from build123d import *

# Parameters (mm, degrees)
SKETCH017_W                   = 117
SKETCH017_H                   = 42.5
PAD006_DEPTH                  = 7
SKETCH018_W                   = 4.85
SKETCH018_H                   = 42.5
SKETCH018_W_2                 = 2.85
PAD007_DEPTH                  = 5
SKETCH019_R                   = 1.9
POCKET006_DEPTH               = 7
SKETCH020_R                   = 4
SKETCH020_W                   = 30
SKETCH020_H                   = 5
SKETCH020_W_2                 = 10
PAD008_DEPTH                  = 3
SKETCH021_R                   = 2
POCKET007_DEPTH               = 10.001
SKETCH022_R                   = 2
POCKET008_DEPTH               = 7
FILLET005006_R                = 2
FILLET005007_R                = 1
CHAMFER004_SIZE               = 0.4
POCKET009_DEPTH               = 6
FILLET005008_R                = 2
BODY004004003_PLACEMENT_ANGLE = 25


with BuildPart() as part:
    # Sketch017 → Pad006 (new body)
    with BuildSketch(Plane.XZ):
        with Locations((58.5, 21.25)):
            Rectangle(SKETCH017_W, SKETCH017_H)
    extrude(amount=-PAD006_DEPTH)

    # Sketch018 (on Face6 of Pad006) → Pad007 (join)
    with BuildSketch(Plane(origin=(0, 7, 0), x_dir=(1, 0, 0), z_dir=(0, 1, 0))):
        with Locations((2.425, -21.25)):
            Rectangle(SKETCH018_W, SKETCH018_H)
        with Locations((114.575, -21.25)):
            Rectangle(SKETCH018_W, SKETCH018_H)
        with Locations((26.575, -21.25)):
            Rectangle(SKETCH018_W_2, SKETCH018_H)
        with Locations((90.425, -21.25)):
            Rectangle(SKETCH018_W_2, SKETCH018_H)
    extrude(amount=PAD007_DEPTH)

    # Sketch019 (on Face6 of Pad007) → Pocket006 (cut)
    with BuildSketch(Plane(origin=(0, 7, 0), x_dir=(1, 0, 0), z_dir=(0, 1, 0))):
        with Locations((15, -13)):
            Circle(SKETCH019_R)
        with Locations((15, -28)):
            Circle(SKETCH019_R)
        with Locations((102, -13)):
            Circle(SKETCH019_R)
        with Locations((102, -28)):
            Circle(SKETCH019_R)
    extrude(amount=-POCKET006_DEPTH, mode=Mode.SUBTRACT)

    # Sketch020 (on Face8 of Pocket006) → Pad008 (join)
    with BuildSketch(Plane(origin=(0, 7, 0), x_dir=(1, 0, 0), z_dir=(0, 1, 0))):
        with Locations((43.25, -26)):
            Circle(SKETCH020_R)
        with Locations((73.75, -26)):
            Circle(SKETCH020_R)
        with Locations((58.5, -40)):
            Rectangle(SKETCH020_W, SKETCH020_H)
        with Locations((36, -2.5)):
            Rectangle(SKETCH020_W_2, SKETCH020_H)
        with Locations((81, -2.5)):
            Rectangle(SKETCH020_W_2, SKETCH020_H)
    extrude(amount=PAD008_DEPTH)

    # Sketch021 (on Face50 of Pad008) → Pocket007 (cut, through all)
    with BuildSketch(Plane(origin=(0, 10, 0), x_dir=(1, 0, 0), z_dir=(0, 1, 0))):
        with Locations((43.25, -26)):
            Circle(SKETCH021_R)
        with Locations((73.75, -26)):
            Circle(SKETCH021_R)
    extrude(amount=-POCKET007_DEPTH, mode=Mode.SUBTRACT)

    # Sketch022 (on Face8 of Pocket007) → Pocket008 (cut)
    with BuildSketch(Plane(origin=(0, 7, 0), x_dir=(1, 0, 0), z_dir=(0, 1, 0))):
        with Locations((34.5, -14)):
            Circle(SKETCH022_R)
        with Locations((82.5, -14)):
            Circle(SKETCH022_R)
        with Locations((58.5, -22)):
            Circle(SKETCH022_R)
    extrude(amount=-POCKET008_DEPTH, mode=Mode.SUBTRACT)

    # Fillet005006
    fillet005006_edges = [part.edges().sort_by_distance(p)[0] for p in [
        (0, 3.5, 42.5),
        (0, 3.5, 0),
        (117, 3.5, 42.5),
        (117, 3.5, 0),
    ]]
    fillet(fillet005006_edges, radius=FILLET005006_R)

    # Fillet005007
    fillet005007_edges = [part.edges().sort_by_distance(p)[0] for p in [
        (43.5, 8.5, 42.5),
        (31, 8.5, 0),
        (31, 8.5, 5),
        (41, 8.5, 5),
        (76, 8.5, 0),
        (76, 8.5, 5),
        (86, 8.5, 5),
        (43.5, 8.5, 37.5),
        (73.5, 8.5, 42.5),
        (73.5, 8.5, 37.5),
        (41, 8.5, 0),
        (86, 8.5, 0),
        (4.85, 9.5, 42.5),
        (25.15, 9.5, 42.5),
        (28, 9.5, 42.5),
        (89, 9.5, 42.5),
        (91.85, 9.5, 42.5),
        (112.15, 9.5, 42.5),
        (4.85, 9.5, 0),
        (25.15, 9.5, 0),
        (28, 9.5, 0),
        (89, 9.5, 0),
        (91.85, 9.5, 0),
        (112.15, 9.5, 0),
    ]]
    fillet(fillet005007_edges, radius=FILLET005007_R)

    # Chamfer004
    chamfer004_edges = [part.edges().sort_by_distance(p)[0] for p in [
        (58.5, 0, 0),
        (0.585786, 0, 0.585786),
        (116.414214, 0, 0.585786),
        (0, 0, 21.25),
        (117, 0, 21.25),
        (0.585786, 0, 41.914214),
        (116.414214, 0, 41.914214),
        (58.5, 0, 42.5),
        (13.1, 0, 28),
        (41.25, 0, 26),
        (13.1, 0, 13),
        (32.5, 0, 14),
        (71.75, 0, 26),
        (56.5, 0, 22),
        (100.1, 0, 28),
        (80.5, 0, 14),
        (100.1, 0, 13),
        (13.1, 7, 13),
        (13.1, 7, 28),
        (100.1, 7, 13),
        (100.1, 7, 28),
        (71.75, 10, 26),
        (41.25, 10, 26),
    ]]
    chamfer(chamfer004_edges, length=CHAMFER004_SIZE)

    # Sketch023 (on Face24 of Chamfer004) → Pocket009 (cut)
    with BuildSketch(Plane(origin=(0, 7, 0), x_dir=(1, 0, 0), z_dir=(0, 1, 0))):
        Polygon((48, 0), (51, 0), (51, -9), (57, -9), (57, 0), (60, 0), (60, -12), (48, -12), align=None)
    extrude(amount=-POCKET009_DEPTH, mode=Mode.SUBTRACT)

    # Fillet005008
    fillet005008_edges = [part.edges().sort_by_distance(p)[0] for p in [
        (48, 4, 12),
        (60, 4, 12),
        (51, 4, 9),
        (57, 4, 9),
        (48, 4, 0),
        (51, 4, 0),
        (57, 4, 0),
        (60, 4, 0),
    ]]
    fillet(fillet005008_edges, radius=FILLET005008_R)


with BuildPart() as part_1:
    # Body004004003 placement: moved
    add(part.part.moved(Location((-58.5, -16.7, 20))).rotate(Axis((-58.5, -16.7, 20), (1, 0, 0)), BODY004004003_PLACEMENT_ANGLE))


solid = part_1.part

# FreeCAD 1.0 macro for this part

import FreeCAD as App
import Part
import Sketcher
from FreeCAD import Vector
Q = App.Units.Quantity


def edges_at(feature, points):
    """Names of the edges that pass closest to the given points."""
    edges = feature.Shape.Edges
    near = lambda p: min(range(len(edges)), key=lambda i: edges[i].distToShape(Part.Vertex(*p))[0])
    return sorted({f"Edge{near(p) + 1}" for p in points})

doc = App.newDocument("Part")
body = doc.addObject("PartDesign::Body", "Body")

# Sketch on XZ plane
sketch1 = doc.addObject("Sketcher::SketchObject", "Sketch")
body.addObject(sketch1)
sketch1.AttachmentSupport = (doc.XZ_Plane, [""])
sketch1.MapMode = "FlatFace"
sketch1.addGeometry([
    Part.LineSegment(Vector(0, 42, 0), Vector(0, 0, 0)),
    Part.LineSegment(Vector(0, 0, 0), Vector(117, 0, 0)),
    Part.LineSegment(Vector(117, 0, 0), Vector(117, 42, 0)),
    Part.LineSegment(Vector(117, 42, 0), Vector(0, 42, 0)),
], False)
sketch1.addConstraint([
    Sketcher.Constraint("Coincident", 0, 2, 1, 1),
    Sketcher.Constraint("Coincident", 1, 2, 2, 1),
    Sketcher.Constraint("Coincident", 2, 2, 3, 1),
    Sketcher.Constraint("Coincident", 3, 2, 0, 1),
    Sketcher.Constraint("Vertical", 0),
    Sketcher.Constraint("Horizontal", 1),
    Sketcher.Constraint("Vertical", 2),
    Sketcher.Constraint("Horizontal", 3),
    Sketcher.Constraint("Coincident", 0, 2, -1, 1),
    Sketcher.Constraint("DistanceX", 1, 1, 1, 2, Q("117 mm")),
    Sketcher.Constraint("DistanceY", 0, 2, 0, 1, Q("42.5 mm")),
])
pad1 = doc.addObject("PartDesign::Pad", "Pad")
body.addObject(pad1)
pad1.Profile = sketch1
pad1.Length = 7
pad1.Reversed = True

# Sketch on XZ plane
sketch2 = doc.addObject("Sketcher::SketchObject", "Sketch001")
body.addObject(sketch2)
sketch2.AttachmentSupport = (doc.XZ_Plane, [""])
sketch2.MapMode = "FlatFace"
sketch2.AttachmentOffset = App.Placement(Vector(0, 0, -7), App.Rotation())
sketch2.addGeometry([
    Part.LineSegment(Vector(0, 0, 0), Vector(0, 42.5, 0)),  # 0
    Part.LineSegment(Vector(0, 42.5, 0), Vector(4.8, 42.5, 0)),  # 1
    Part.LineSegment(Vector(4.8, 42.5, 0), Vector(4.8, 0, 0)),  # 2
    Part.LineSegment(Vector(4.8, 0, 0), Vector(0, 0, 0)),  # 3
    Part.LineSegment(Vector(112.2, 0, 0), Vector(112.2, 42.5, 0)),  # 4
    Part.LineSegment(Vector(112.2, 42.5, 0), Vector(117, 42.5, 0)),  # 5
    Part.LineSegment(Vector(117, 42.5, 0), Vector(117, 0, 0)),  # 6
    Part.LineSegment(Vector(117, 0, 0), Vector(112.2, 0, 0)),  # 7
    Part.LineSegment(Vector(25.1, 0, 0), Vector(25.1, 42.5, 0)),  # 8
    Part.LineSegment(Vector(25.1, 42.5, 0), Vector(28, 42.5, 0)),  # 9
    Part.LineSegment(Vector(28, 42.5, 0), Vector(28, 0, 0)),  # 10
    Part.LineSegment(Vector(28, 0, 0), Vector(25.1, 0, 0)),  # 11
    Part.LineSegment(Vector(89, 0, 0), Vector(89, 42.5, 0)),  # 12
    Part.LineSegment(Vector(89, 42.5, 0), Vector(91.8, 42.5, 0)),  # 13
    Part.LineSegment(Vector(91.8, 42.5, 0), Vector(91.8, 0, 0)),  # 14
    Part.LineSegment(Vector(91.8, 0, 0), Vector(89, 0, 0)),  # 15
], False)
sketch2.addConstraint([
    Sketcher.Constraint("Coincident", 0, 2, 1, 1),
    Sketcher.Constraint("Coincident", 1, 2, 2, 1),
    Sketcher.Constraint("Coincident", 2, 2, 3, 1),
    Sketcher.Constraint("Coincident", 3, 2, 0, 1),
    Sketcher.Constraint("Coincident", 4, 2, 5, 1),
    Sketcher.Constraint("Coincident", 5, 2, 6, 1),
    Sketcher.Constraint("Coincident", 6, 2, 7, 1),
    Sketcher.Constraint("Coincident", 7, 2, 4, 1),
    Sketcher.Constraint("Coincident", 8, 2, 9, 1),
    Sketcher.Constraint("Coincident", 9, 2, 10, 1),
    Sketcher.Constraint("Coincident", 10, 2, 11, 1),
    Sketcher.Constraint("Coincident", 11, 2, 8, 1),
    Sketcher.Constraint("Coincident", 12, 2, 13, 1),
    Sketcher.Constraint("Coincident", 13, 2, 14, 1),
    Sketcher.Constraint("Coincident", 14, 2, 15, 1),
    Sketcher.Constraint("Coincident", 15, 2, 12, 1),
    Sketcher.Constraint("Vertical", 0),
    Sketcher.Constraint("Horizontal", 1),
    Sketcher.Constraint("Vertical", 2),
    Sketcher.Constraint("Horizontal", 3),
    Sketcher.Constraint("Vertical", 4),
    Sketcher.Constraint("Horizontal", 5),
    Sketcher.Constraint("Vertical", 6),
    Sketcher.Constraint("Horizontal", 7),
    Sketcher.Constraint("Vertical", 8),
    Sketcher.Constraint("Horizontal", 9),
    Sketcher.Constraint("Vertical", 10),
    Sketcher.Constraint("Horizontal", 11),
    Sketcher.Constraint("Vertical", 12),
    Sketcher.Constraint("Horizontal", 13),
    Sketcher.Constraint("Vertical", 14),
    Sketcher.Constraint("Horizontal", 15),
    Sketcher.Constraint("Coincident", 3, 2, -1, 1),
    Sketcher.Constraint("PointOnObject", 6, 2, -1),
    Sketcher.Constraint("PointOnObject", 10, 2, -1),
    Sketcher.Constraint("PointOnObject", 14, 2, -1),
    Sketcher.Constraint("Horizontal", 1, 2, 4, 2),
    Sketcher.Constraint("Horizontal", 5, 2, 8, 2),
    Sketcher.Constraint("Horizontal", 9, 2, 12, 2),
    Sketcher.Constraint("Equal", 3, 5),
    Sketcher.Constraint("Equal", 11, 13),
    Sketcher.Constraint("DistanceY", 0, 1, 0, 2, Q("42.5 mm")),
    Sketcher.Constraint("DistanceX", -1, 1, 5, 2, Q("117 mm")),
    Sketcher.Constraint("DistanceX", -1, 1, 9, 2, Q("28 mm")),
    Sketcher.Constraint("DistanceX", -1, 1, 12, 2, Q("89 mm")),
    Sketcher.Constraint("DistanceX", 8, 2, 4, 2, Q("87 mm")),
    Sketcher.Constraint("DistanceX", 1, 1, 1, 2, Q("4.85 mm")),
])
pad2 = doc.addObject("PartDesign::Pad", "Pad001")
body.addObject(pad2)
pad2.Profile = sketch2
pad2.Length = 5
pad2.Reversed = True

# Sketch on XZ plane
sketch3 = doc.addObject("Sketcher::SketchObject", "Sketch002")
body.addObject(sketch3)
sketch3.AttachmentSupport = (doc.XZ_Plane, [""])
sketch3.MapMode = "FlatFace"
sketch3.AttachmentOffset = App.Placement(Vector(0, 0, -7), App.Rotation())
sketch3.addGeometry([
    Part.Circle(Vector(15, 13, 0), Vector(0, 0, 1), 1.9),
    Part.Circle(Vector(15, 28, 0), Vector(0, 0, 1), 1.9),
    Part.Circle(Vector(102, 13, 0), Vector(0, 0, 1), 1.9),
    Part.Circle(Vector(102, 28, 0), Vector(0, 0, 1), 1.9),
], False)
sketch3.addConstraint([
    Sketcher.Constraint("Equal", 0, 1),
    Sketcher.Constraint("Equal", 1, 2),
    Sketcher.Constraint("Equal", 2, 3),
    Sketcher.Constraint("Horizontal", 0, 3, 2, 3),
    Sketcher.Constraint("Horizontal", 1, 3, 3, 3),
    Sketcher.Constraint("Vertical", 0, 3, 1, 3),
    Sketcher.Constraint("Vertical", 2, 3, 3, 3),
    Sketcher.Constraint("Diameter", 0, Q("3.8 mm")),
    Sketcher.Constraint("DistanceX", -1, 1, 0, 3, Q("15 mm")),
    Sketcher.Constraint("DistanceY", -1, 1, 0, 3, Q("13 mm")),
    Sketcher.Constraint("DistanceY", -1, 1, 1, 3, Q("28 mm")),
    Sketcher.Constraint("DistanceX", -1, 1, 2, 3, Q("102 mm")),
])
pocket1 = doc.addObject("PartDesign::Pocket", "Pocket")
body.addObject(pocket1)
pocket1.Profile = sketch3
pocket1.Length = 7
pocket1.Reversed = True

# Sketch on XZ plane
sketch4 = doc.addObject("Sketcher::SketchObject", "Sketch003")
body.addObject(sketch4)
sketch4.AttachmentSupport = (doc.XZ_Plane, [""])
sketch4.MapMode = "FlatFace"
sketch4.AttachmentOffset = App.Placement(Vector(0, 0, -7), App.Rotation())
sketch4.addGeometry([
    Part.Circle(Vector(43.2, 26, 0), Vector(0, 0, 1), 4),  # 0
    Part.Circle(Vector(73.8, 26, 0), Vector(0, 0, 1), 4),  # 1
    Part.LineSegment(Vector(43.5, 37.5, 0), Vector(43.5, 42.5, 0)),  # 2
    Part.LineSegment(Vector(43.5, 42.5, 0), Vector(73.5, 42.5, 0)),  # 3
    Part.LineSegment(Vector(73.5, 42.5, 0), Vector(73.5, 37.5, 0)),  # 4
    Part.LineSegment(Vector(73.5, 37.5, 0), Vector(43.5, 37.5, 0)),  # 5
    Part.LineSegment(Vector(31, 0, 0), Vector(31, 5, 0)),  # 6
    Part.LineSegment(Vector(31, 5, 0), Vector(41, 5, 0)),  # 7
    Part.LineSegment(Vector(41, 5, 0), Vector(41, 0, 0)),  # 8
    Part.LineSegment(Vector(41, 0, 0), Vector(31, 0, 0)),  # 9
    Part.LineSegment(Vector(76, 0, 0), Vector(76, 5, 0)),  # 10
    Part.LineSegment(Vector(76, 5, 0), Vector(86, 5, 0)),  # 11
    Part.LineSegment(Vector(86, 5, 0), Vector(86, 0, 0)),  # 12
    Part.LineSegment(Vector(86, 0, 0), Vector(76, 0, 0)),  # 13
], False)
sketch4.addConstraint([
    Sketcher.Constraint("Coincident", 2, 2, 3, 1),
    Sketcher.Constraint("Coincident", 3, 2, 4, 1),
    Sketcher.Constraint("Coincident", 4, 2, 5, 1),
    Sketcher.Constraint("Coincident", 5, 2, 2, 1),
    Sketcher.Constraint("Coincident", 6, 2, 7, 1),
    Sketcher.Constraint("Coincident", 7, 2, 8, 1),
    Sketcher.Constraint("Coincident", 8, 2, 9, 1),
    Sketcher.Constraint("Coincident", 9, 2, 6, 1),
    Sketcher.Constraint("Coincident", 10, 2, 11, 1),
    Sketcher.Constraint("Coincident", 11, 2, 12, 1),
    Sketcher.Constraint("Coincident", 12, 2, 13, 1),
    Sketcher.Constraint("Coincident", 13, 2, 10, 1),
    Sketcher.Constraint("Vertical", 2),
    Sketcher.Constraint("Horizontal", 3),
    Sketcher.Constraint("Vertical", 4),
    Sketcher.Constraint("Horizontal", 5),
    Sketcher.Constraint("Vertical", 6),
    Sketcher.Constraint("Horizontal", 7),
    Sketcher.Constraint("Vertical", 8),
    Sketcher.Constraint("Horizontal", 9),
    Sketcher.Constraint("Vertical", 10),
    Sketcher.Constraint("Horizontal", 11),
    Sketcher.Constraint("Vertical", 12),
    Sketcher.Constraint("Horizontal", 13),
    Sketcher.Constraint("Equal", 0, 1),
    Sketcher.Constraint("PointOnObject", 8, 2, -1),
    Sketcher.Constraint("PointOnObject", 12, 2, -1),
    Sketcher.Constraint("Horizontal", 0, 3, 1, 3),
    Sketcher.Constraint("Horizontal", 7, 2, 10, 2),
    Sketcher.Constraint("Equal", 9, 11),
    Sketcher.Constraint("Equal", 4, 6),
    Sketcher.Constraint("Diameter", 0, Q("8 mm")),
    Sketcher.Constraint("DistanceX", 3, 1, 3, 2, Q("30 mm")),
    Sketcher.Constraint("DistanceX", 7, 1, 7, 2, Q("10 mm")),
    Sketcher.Constraint("DistanceY", 2, 1, 2, 2, Q("5 mm")),
    Sketcher.Constraint("DistanceY", -1, 1, 0, 3, Q("26 mm")),
    Sketcher.Constraint("DistanceX", -1, 1, 6, 2, Q("31 mm")),
    Sketcher.Constraint("DistanceX", -1, 1, 10, 2, Q("76 mm")),
    Sketcher.Constraint("DistanceX", -1, 1, 2, 2, Q("43.5 mm")),
    Sketcher.Constraint("DistanceY", -1, 1, 2, 2, Q("42.5 mm")),
    Sketcher.Constraint("DistanceX", 0, 3, 1, 3, Q("30.5 mm")),
    Sketcher.Constraint("DistanceX", -1, 1, 0, 3, Q("43.25 mm")),
])
pad3 = doc.addObject("PartDesign::Pad", "Pad002")
body.addObject(pad3)
pad3.Profile = sketch4
pad3.Length = 3
pad3.Reversed = True

# Sketch on XZ plane
sketch5 = doc.addObject("Sketcher::SketchObject", "Sketch004")
body.addObject(sketch5)
sketch5.AttachmentSupport = (doc.XZ_Plane, [""])
sketch5.MapMode = "FlatFace"
sketch5.AttachmentOffset = App.Placement(Vector(0, 0, -10), App.Rotation())
sketch5.addGeometry([
    Part.Circle(Vector(43.2, 26, 0), Vector(0, 0, 1), 2),
    Part.Circle(Vector(73.8, 26, 0), Vector(0, 0, 1), 2),
], False)
sketch5.addConstraint([
    Sketcher.Constraint("Equal", 0, 1),
    Sketcher.Constraint("Horizontal", 0, 3, 1, 3),
    Sketcher.Constraint("Diameter", 0, Q("4 mm")),
    Sketcher.Constraint("DistanceY", -1, 1, 0, 3, Q("26 mm")),
    Sketcher.Constraint("DistanceX", 0, 3, 1, 3, Q("30.5 mm")),
    Sketcher.Constraint("DistanceX", -1, 1, 0, 3, Q("43.25 mm")),
])
pocket2 = doc.addObject("PartDesign::Pocket", "Pocket001")
body.addObject(pocket2)
pocket2.Profile = sketch5
pocket2.Type = "ThroughAll"
pocket2.Reversed = True

# Sketch on XZ plane
sketch6 = doc.addObject("Sketcher::SketchObject", "Sketch005")
body.addObject(sketch6)
sketch6.AttachmentSupport = (doc.XZ_Plane, [""])
sketch6.MapMode = "FlatFace"
sketch6.AttachmentOffset = App.Placement(Vector(0, 0, -7), App.Rotation())
sketch6.addGeometry([
    Part.Circle(Vector(34.5, 14, 0), Vector(0, 0, 1), 2),
    Part.Circle(Vector(82.5, 14, 0), Vector(0, 0, 1), 2),
    Part.Circle(Vector(58.5, 22, 0), Vector(0, 0, 1), 2),
], False)
sketch6.addConstraint([
    Sketcher.Constraint("Equal", 0, 1),
    Sketcher.Constraint("Equal", 1, 2),
    Sketcher.Constraint("Horizontal", 0, 3, 1, 3),
    Sketcher.Constraint("Diameter", 0, Q("4 mm")),
    Sketcher.Constraint("DistanceY", -1, 1, 0, 3, Q("14 mm")),
    Sketcher.Constraint("DistanceY", -1, 1, 2, 3, Q("22 mm")),
    Sketcher.Constraint("DistanceX", 0, 3, 1, 3, Q("48 mm")),
    Sketcher.Constraint("DistanceX", 0, 3, 2, 3, Q("24 mm")),
    Sketcher.Constraint("DistanceX", -1, 1, 0, 3, Q("34.5 mm")),
])
pocket3 = doc.addObject("PartDesign::Pocket", "Pocket002")
body.addObject(pocket3)
pocket3.Profile = sketch6
pocket3.Length = 7
pocket3.Reversed = True
doc.recompute()

fillet = doc.addObject("PartDesign::Fillet", "Fillet")
body.addObject(fillet)
fillet.Base = (pocket3, edges_at(pocket3, [
    (0, 6, 42.5),
    (0, 6, 0),
    (117, 6, 42.5),
    (117, 6, 0),
]))
fillet.Radius = 2
doc.recompute()

fillet2 = doc.addObject("PartDesign::Fillet", "Fillet001")
body.addObject(fillet2)
fillet2.Base = (fillet, edges_at(fillet, [
    (43.5, 8.5, 42.5),
    (31, 8.5, 0),
    (31, 8.5, 5),
    (41, 8.5, 5),
    (76, 8.5, 0),
    (76, 8.5, 5),
    (86, 8.5, 5),
    (43.5, 8.5, 37.5),
    (73.5, 8.5, 42.5),
    (73.5, 8.5, 37.5),
    (41, 8.5, 0),
    (86, 8.5, 0),
    (4.85, 9.5, 42.5),
    (25.15, 9.5, 42.5),
    (28, 9.5, 42.5),
    (89, 9.5, 42.5),
    (91.85, 9.5, 42.5),
    (112.15, 9.5, 42.5),
    (4.85, 9.5, 0),
    (25.15, 9.5, 0),
    (28, 9.5, 0),
    (89, 9.5, 0),
    (91.85, 9.5, 0),
    (112.15, 9.5, 0),
]))
fillet2.Radius = 1
doc.recompute()

chamfer = doc.addObject("PartDesign::Chamfer", "Chamfer")
body.addObject(chamfer)
chamfer.Base = (fillet2, edges_at(fillet2, [
    (58.5, 0, 0),
    (0.586, 0, 0.586),
    (116.414, 0, 0.586),
    (0, 0, 21.25),
    (117, 0, 21.25),
    (0.586, 0, 41.914),
    (116.414, 0, 41.914),
    (58.5, 0, 42.5),
    (13.1, 0, 28),
    (41.25, 0, 26),
    (13.1, 0, 13),
    (32.5, 0, 14),
    (71.75, 0, 26),
    (56.5, 0, 22),
    (100.1, 0, 28),
    (80.5, 0, 14),
    (100.1, 0, 13),
    (13.1, 7, 13),
    (13.1, 7, 28),
    (100.1, 7, 13),
    (100.1, 7, 28),
    (71.75, 10, 26),
    (41.25, 10, 26),
]))
chamfer.Size = 0.4

# Sketch on XZ plane
sketch7 = doc.addObject("Sketcher::SketchObject", "Sketch006")
body.addObject(sketch7)
sketch7.AttachmentSupport = (doc.XZ_Plane, [""])
sketch7.MapMode = "FlatFace"
sketch7.AttachmentOffset = App.Placement(Vector(0, 0, -7), App.Rotation())
sketch7.addGeometry([
    Part.LineSegment(Vector(51, 0, 0), Vector(48, 0, 0)),  # 0
    Part.LineSegment(Vector(48, 0, 0), Vector(48, 12, 0)),  # 1
    Part.LineSegment(Vector(48, 12, 0), Vector(60, 12, 0)),  # 2
    Part.LineSegment(Vector(60, 12, 0), Vector(60, 0, 0)),  # 3
    Part.LineSegment(Vector(60, 0, 0), Vector(57, 0, 0)),  # 4
    Part.LineSegment(Vector(57, 0, 0), Vector(57, 9, 0)),  # 5
    Part.LineSegment(Vector(57, 9, 0), Vector(51, 9, 0)),  # 6
    Part.LineSegment(Vector(51, 9, 0), Vector(51, 0, 0)),  # 7
], False)
sketch7.addConstraint([
    Sketcher.Constraint("Coincident", 0, 2, 1, 1),
    Sketcher.Constraint("Coincident", 1, 2, 2, 1),
    Sketcher.Constraint("Coincident", 2, 2, 3, 1),
    Sketcher.Constraint("Coincident", 3, 2, 4, 1),
    Sketcher.Constraint("Coincident", 4, 2, 5, 1),
    Sketcher.Constraint("Coincident", 5, 2, 6, 1),
    Sketcher.Constraint("Coincident", 6, 2, 7, 1),
    Sketcher.Constraint("Coincident", 7, 2, 0, 1),
    Sketcher.Constraint("Horizontal", 0),
    Sketcher.Constraint("Vertical", 1),
    Sketcher.Constraint("Horizontal", 2),
    Sketcher.Constraint("Vertical", 3),
    Sketcher.Constraint("Horizontal", 4),
    Sketcher.Constraint("Vertical", 5),
    Sketcher.Constraint("Horizontal", 6),
    Sketcher.Constraint("Vertical", 7),
    Sketcher.Constraint("PointOnObject", 0, 2, -1),
    Sketcher.Constraint("PointOnObject", 3, 2, -1),
    Sketcher.Constraint("Equal", 0, 4),
    Sketcher.Constraint("Equal", 2, 1),
    Sketcher.Constraint("DistanceX", 0, 2, 0, 1, Q("3 mm")),
    Sketcher.Constraint("DistanceX", 2, 1, 2, 2, Q("12 mm")),
    Sketcher.Constraint("DistanceY", 5, 1, 5, 2, Q("9 mm")),
    Sketcher.Constraint("DistanceX", -1, 1, 0, 2, Q("48 mm")),
])
pocket4 = doc.addObject("PartDesign::Pocket", "Pocket003")
body.addObject(pocket4)
pocket4.Profile = sketch7
pocket4.Length = 6
pocket4.Reversed = True
doc.recompute()

fillet3 = doc.addObject("PartDesign::Fillet", "Fillet002")
body.addObject(fillet3)
fillet3.Base = (pocket4, edges_at(pocket4, [
    (48, 4, 12),
    (60, 4, 12),
    (51, 4, 9),
    (57, 4, 9),
    (48, 4, 0),
    (51, 4, 0),
    (57, 4, 0),
    (60, 4, 0),
]))
fillet3.Radius = 2
body2 = doc.addObject("PartDesign::Body", "Body001")
doc.recompute()

body.Placement = App.Placement(Vector(-58.5, -16.7, 20), App.Rotation(Vector(1, 0, 0), 25))
boolean = doc.addObject("PartDesign::Boolean", "Boolean")
body2.addObject(boolean)
boolean.Type = "Fuse"
boolean.addObjects([body])

doc.recompute()
